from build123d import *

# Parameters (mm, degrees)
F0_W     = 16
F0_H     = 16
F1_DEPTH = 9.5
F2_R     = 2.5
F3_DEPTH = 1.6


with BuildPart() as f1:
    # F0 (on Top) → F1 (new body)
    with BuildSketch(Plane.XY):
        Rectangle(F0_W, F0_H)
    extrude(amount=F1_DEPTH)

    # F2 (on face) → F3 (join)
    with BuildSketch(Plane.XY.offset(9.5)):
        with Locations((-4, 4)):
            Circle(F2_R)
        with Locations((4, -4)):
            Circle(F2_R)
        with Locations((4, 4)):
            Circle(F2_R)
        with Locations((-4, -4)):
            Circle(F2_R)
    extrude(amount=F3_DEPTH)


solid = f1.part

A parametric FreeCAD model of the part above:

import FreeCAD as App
import Part
import Sketcher

V = App.Vector


def add_polygon(sketch, points):
    """Adds a closed chain of lines whose ends are joined by coincident constraints."""
    first, n = sketch.GeometryCount, len(points)
    for a, b in zip(points, points[1:] + points[:1]):
        sketch.addGeometry(Part.LineSegment(App.Vector(*a, 0), App.Vector(*b, 0)), False)
    for i in range(n):
        sketch.addConstraint(Sketcher.Constraint("Coincident", first + i, 2, first + (i + 1) % n, 1))

doc = App.newDocument("Part")
params = doc.addObject("Spreadsheet::Sheet", "Params")
for row, (alias, value) in enumerate([
    ("sketch1_width", "16 mm"),
    ("pad1_length", "9.5 mm"),
    ("sketch2_diameter", "5 mm"),
    ("pad2_length", "1.6 mm"),
], start=1):
    params.set(f"A{row}", alias)
    params.set(f"B{row}", "=" + value)
    params.setAlias(f"B{row}", alias)

body = doc.addObject("PartDesign::Body", "Body")

# Sketch on XY plane
sketch1 = body.newObject("Sketcher::SketchObject", "Sketch")
sketch1.AttachmentSupport = (doc.getObject("XY_Plane"), [""])
sketch1.MapMode = "FlatFace"
add_polygon(sketch1, [(-8, 8), (-8, -8), (8, -8), (8, 8)])  # lines 0-3
sketch1.addConstraint([
    Sketcher.Constraint("Vertical", 0),
    Sketcher.Constraint("Horizontal", 1),
    Sketcher.Constraint("Vertical", 2),
    Sketcher.Constraint("Horizontal", 3),
    Sketcher.Constraint("Symmetric", 0, 2, 2, 2, -1, 1),
    Sketcher.Constraint("Equal", 3, 0),
    Sketcher.Constraint("DistanceX", 1, 1, 1, 2, 16.0),
])
sketch1.setExpression("Constraints[10]", "Params.sketch1_width")
pad1 = body.newObject("PartDesign::Pad", "Pad")
pad1.Profile = sketch1
pad1.setExpression("Length", "Params.pad1_length")

# Sketch on XY plane
sketch2 = body.newObject("Sketcher::SketchObject", "Sketch001")
sketch2.AttachmentSupport = (doc.getObject("XY_Plane"), [""])
sketch2.MapMode = "FlatFace"
sketch2.AttachmentOffset = App.Placement(V(0, 0, 9.5), App.Rotation())
sketch2.addGeometry([
    Part.Circle(V(-4, 4, 0), V(0, 0, 1), 2.5),
    Part.Circle(V(4, -4, 0), V(0, 0, 1), 2.5),
    Part.Circle(V(4, 4, 0), V(0, 0, 1), 2.5),
    Part.Circle(V(-4, -4, 0), V(0, 0, 1), 2.5),
], False)
sketch2.addConstraint([
    Sketcher.Constraint("Equal", 0, 1),
    Sketcher.Constraint("Equal", 1, 2),
    Sketcher.Constraint("Equal", 2, 3),
    Sketcher.Constraint("Symmetric", 0, 3, 1, 3, -1, 1),
    Sketcher.Constraint("Symmetric", 2, 3, 3, 3, -1, 1),
    Sketcher.Constraint("Symmetric", 0, 3, 2, 3, -2),
    Sketcher.Constraint("Diameter", 0, 5.0),
    Sketcher.Constraint("DistanceX", 0, 3, -1, 1, 4.0),
    Sketcher.Constraint("DistanceY", -1, 1, 0, 3, 4.0),
])
sketch2.setExpression("Constraints[6]", "Params.sketch2_diameter")
pad2 = body.newObject("PartDesign::Pad", "Pad001")
pad2.Profile = sketch2
pad2.setExpression("Length", "Params.pad2_length")

doc.recompute()
